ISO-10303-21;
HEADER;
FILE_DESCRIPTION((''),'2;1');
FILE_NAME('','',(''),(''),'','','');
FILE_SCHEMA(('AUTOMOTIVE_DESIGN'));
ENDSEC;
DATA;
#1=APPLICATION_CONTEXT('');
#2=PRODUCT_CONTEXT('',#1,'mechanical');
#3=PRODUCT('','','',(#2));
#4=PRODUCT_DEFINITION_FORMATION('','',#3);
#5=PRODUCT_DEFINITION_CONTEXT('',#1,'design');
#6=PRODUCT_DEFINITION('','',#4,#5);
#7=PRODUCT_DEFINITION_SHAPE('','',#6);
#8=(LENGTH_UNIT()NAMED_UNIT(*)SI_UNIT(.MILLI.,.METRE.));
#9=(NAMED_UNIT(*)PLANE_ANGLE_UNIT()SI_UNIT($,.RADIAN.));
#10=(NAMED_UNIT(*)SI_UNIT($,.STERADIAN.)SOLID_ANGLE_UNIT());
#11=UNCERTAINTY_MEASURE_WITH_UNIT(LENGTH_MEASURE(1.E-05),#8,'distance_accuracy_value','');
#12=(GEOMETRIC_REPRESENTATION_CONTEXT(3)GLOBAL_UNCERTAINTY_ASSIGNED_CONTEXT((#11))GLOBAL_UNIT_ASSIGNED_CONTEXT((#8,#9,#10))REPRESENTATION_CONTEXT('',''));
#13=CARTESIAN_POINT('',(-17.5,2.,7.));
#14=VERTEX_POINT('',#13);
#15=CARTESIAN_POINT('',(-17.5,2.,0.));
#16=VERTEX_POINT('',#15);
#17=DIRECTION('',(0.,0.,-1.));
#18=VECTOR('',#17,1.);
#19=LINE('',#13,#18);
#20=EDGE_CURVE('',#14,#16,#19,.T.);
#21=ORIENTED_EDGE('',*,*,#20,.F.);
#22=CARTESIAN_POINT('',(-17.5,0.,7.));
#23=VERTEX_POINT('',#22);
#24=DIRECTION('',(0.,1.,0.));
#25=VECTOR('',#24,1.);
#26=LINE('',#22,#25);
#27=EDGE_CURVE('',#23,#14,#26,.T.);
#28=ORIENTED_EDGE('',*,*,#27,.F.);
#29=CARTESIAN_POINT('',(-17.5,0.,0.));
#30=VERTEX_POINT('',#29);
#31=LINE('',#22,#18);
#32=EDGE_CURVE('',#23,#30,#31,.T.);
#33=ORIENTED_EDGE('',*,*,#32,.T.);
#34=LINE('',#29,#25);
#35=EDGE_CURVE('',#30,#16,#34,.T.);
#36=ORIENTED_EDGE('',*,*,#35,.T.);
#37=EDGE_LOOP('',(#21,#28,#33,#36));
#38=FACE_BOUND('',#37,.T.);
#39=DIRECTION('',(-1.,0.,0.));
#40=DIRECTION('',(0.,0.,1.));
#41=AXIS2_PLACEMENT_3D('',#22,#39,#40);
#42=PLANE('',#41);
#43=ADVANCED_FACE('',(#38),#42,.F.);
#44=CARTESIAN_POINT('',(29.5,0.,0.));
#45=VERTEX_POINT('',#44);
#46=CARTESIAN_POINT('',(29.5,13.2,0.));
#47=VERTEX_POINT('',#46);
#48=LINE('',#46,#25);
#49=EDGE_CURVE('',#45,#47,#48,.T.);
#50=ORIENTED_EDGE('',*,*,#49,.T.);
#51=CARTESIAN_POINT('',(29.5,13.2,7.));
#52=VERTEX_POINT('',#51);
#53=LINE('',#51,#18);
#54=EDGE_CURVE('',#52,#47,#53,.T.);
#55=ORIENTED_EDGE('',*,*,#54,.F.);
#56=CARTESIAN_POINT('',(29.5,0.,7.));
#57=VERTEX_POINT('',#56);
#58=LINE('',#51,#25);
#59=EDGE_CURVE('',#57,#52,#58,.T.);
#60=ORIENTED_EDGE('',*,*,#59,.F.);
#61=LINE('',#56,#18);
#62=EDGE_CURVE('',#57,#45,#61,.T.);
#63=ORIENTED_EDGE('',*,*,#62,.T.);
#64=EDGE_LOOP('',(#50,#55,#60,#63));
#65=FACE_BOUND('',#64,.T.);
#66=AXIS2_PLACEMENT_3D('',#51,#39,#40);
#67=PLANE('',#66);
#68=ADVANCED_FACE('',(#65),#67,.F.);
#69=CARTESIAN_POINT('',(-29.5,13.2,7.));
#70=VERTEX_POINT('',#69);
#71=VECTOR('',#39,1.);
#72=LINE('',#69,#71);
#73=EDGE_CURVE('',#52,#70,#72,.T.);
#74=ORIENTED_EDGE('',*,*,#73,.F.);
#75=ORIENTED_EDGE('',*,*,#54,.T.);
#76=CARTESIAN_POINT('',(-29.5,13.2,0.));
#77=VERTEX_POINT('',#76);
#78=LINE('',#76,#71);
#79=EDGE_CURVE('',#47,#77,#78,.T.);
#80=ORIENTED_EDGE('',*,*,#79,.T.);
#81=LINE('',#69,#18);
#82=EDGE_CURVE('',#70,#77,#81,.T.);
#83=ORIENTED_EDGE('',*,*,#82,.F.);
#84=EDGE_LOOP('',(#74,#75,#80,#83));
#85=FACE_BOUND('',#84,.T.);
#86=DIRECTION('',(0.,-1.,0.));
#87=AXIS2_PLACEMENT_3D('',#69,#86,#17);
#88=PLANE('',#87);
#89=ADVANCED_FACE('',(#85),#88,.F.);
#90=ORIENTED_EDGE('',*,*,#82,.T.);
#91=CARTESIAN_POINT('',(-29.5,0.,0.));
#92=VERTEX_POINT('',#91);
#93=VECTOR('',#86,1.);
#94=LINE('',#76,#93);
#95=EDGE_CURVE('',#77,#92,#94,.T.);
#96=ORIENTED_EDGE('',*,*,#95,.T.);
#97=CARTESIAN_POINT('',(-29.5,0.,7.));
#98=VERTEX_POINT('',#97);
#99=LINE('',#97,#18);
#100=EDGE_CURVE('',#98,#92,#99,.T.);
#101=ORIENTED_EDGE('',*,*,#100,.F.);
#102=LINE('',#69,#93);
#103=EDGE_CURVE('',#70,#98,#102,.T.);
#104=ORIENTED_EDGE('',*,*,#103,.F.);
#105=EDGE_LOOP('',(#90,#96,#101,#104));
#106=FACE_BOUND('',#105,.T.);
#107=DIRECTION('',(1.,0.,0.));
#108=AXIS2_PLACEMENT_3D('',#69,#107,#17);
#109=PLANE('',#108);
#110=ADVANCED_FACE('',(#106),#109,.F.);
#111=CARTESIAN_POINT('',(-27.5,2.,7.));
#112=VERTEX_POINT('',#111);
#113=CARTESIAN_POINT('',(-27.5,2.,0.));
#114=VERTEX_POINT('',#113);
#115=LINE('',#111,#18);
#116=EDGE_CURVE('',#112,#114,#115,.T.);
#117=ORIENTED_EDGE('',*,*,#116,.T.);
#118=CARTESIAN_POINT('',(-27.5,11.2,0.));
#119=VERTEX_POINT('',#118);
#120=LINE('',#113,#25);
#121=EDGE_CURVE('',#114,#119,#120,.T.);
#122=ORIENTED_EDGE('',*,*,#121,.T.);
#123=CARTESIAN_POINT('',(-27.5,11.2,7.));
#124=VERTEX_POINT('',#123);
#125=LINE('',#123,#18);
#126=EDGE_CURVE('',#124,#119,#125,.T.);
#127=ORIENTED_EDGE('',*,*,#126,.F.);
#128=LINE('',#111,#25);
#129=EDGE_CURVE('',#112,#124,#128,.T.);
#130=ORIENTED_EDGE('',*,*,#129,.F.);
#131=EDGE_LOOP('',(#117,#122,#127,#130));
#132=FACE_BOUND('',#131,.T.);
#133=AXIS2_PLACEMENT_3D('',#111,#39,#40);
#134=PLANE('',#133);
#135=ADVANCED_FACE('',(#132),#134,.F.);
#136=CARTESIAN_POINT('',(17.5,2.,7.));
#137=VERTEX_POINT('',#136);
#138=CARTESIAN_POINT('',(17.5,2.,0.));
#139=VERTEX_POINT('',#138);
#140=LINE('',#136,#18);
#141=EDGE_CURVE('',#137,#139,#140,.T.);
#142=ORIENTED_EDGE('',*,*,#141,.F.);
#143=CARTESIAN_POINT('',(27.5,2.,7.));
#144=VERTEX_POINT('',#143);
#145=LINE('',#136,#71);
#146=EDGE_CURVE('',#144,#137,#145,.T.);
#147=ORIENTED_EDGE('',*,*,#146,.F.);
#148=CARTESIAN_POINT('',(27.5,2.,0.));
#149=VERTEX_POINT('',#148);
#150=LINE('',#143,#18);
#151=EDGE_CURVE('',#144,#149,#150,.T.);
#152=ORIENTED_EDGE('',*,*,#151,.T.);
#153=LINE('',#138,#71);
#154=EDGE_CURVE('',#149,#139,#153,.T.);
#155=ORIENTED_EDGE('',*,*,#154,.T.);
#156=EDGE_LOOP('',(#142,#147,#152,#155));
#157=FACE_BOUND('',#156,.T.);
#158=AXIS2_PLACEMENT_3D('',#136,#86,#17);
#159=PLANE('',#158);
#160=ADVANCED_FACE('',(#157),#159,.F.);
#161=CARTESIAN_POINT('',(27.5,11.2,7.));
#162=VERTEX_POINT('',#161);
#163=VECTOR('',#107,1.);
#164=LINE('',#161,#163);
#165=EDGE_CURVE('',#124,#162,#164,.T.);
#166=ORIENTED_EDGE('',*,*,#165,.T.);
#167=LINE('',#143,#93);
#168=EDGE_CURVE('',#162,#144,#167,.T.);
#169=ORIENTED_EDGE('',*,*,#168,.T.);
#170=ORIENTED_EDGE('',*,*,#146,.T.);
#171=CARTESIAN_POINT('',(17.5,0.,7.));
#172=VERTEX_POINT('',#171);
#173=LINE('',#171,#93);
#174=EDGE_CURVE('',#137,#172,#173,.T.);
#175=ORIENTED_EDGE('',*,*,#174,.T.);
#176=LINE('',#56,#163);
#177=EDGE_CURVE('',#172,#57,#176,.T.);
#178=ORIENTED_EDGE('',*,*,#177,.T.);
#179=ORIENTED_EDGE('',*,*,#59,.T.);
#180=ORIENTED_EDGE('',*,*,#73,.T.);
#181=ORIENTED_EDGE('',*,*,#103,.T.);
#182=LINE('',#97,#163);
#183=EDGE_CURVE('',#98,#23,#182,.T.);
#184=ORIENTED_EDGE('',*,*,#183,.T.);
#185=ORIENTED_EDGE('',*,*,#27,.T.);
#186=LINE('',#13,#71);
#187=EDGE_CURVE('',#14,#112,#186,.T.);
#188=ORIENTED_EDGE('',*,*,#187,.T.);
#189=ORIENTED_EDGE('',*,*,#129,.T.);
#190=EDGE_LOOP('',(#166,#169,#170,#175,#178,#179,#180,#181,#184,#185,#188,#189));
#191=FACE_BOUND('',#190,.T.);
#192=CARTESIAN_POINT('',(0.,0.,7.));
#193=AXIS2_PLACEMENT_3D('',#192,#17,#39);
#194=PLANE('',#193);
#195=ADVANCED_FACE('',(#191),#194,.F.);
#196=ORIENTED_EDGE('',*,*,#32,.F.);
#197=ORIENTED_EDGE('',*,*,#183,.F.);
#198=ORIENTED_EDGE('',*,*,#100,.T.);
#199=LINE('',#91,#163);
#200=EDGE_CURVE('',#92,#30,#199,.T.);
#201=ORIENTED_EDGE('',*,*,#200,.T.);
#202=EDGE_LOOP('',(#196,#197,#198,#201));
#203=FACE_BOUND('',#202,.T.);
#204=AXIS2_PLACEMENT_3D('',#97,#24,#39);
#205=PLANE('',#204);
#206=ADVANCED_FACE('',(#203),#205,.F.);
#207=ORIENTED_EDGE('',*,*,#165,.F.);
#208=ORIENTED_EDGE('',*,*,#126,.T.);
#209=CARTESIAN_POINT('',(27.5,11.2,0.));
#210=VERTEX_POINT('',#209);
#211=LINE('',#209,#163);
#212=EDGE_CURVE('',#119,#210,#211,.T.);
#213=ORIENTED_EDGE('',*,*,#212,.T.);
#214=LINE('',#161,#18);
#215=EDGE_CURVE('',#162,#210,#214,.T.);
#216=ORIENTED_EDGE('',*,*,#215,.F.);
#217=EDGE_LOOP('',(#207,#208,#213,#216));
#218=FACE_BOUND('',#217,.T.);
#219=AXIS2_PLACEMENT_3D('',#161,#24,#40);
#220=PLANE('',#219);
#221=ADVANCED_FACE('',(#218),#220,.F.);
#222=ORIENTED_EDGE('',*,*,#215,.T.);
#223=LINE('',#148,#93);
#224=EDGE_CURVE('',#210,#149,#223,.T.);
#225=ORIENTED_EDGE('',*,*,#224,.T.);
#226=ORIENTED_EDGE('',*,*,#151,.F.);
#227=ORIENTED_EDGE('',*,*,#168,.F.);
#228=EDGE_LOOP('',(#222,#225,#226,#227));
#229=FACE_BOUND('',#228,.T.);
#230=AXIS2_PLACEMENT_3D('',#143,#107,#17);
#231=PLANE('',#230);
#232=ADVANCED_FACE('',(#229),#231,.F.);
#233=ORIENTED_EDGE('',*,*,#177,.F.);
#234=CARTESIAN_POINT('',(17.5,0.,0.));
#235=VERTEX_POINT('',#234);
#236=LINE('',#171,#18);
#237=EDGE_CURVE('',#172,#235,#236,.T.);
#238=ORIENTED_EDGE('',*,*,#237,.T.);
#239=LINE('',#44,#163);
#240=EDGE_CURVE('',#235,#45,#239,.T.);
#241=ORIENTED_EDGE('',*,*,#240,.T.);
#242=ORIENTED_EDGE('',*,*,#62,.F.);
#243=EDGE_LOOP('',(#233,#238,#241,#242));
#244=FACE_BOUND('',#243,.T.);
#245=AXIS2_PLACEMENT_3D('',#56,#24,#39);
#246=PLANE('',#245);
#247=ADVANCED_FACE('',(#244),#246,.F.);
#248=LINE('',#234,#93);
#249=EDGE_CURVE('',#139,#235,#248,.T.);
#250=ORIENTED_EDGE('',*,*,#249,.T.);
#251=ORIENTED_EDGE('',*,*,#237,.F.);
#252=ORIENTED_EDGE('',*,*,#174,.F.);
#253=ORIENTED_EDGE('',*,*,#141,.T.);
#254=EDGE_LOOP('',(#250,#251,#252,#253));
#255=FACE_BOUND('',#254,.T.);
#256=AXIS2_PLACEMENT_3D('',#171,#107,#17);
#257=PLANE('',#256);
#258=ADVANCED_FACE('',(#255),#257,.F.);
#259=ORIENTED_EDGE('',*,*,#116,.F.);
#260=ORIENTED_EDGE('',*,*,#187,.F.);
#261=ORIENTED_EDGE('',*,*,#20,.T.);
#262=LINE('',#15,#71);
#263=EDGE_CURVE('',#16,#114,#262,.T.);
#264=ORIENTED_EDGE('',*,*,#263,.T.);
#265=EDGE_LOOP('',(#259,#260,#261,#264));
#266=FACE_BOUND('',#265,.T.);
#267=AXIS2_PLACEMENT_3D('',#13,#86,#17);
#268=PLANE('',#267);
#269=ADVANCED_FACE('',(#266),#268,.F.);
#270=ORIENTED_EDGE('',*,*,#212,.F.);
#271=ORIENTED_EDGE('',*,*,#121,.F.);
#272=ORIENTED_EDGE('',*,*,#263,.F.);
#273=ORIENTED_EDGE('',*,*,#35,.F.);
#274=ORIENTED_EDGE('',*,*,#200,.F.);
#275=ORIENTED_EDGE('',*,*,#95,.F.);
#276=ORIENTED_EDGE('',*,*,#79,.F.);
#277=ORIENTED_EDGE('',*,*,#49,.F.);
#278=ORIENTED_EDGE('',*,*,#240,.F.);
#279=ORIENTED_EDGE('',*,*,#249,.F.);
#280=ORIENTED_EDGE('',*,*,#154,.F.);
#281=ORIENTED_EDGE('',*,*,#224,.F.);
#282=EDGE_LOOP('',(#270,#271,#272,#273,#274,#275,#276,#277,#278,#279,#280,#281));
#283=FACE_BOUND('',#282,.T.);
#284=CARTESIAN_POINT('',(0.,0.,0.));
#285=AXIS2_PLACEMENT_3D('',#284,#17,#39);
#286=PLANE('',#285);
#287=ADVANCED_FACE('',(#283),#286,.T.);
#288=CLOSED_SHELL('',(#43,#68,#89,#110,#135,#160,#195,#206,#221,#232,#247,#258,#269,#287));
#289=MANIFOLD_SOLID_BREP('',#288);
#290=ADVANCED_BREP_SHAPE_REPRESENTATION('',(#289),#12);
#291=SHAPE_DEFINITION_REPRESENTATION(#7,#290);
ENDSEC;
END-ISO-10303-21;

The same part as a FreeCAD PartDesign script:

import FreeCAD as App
import Part
import Sketcher

V = App.Vector
Q = App.Units.Quantity

doc = App.newDocument("Part")
body = doc.addObject("PartDesign::Body", "Body")

# Sketch on XY plane
sketch1 = body.newObject("Sketcher::SketchObject", "Sketch")
sketch1.AttachmentSupport = (doc.getObject("XY_Plane"), [""])
sketch1.MapMode = "FlatFace"
sketch1.addGeometry(Part.LineSegment(V(29.5, 13.2, 0), V(-29.5, 13.2, 0)), False)
sketch1.addGeometry(Part.LineSegment(V(-29.5, 13.2, 0), V(-29.5, 0, 0)), False)
sketch1.addGeometry(Part.LineSegment(V(-29.5, 0, 0), V(-17.5, 0, 0)), False)
sketch1.addGeometry(Part.LineSegment(V(-17.5, 0, 0), V(-17.5, 2, 0)), False)
sketch1.addGeometry(Part.LineSegment(V(-17.5, 2, 0), V(-27.5, 2, 0)), False)
sketch1.addGeometry(Part.LineSegment(V(-27.5, 2, 0), V(-27.5, 11.2, 0)), False)
sketch1.addGeometry(Part.LineSegment(V(-27.5, 11.2, 0), V(27.5, 11.2, 0)), False)
sketch1.addGeometry(Part.LineSegment(V(27.5, 11.2, 0), V(27.5, 2, 0)), False)
sketch1.addGeometry(Part.LineSegment(V(27.5, 2, 0), V(17.5, 2, 0)), False)
sketch1.addGeometry(Part.LineSegment(V(17.5, 2, 0), V(17.5, 0, 0)), False)
sketch1.addGeometry(Part.LineSegment(V(17.5, 0, 0), V(29.5, 0, 0)), False)
sketch1.addGeometry(Part.LineSegment(V(29.5, 0, 0), V(29.5, 13.2, 0)), False)
sketch1.addConstraint(Sketcher.Constraint("Coincident", 0, 2, 1, 1))
sketch1.addConstraint(Sketcher.Constraint("Coincident", 1, 2, 2, 1))
sketch1.addConstraint(Sketcher.Constraint("Coincident", 2, 2, 3, 1))
sketch1.addConstraint(Sketcher.Constraint("Coincident", 3, 2, 4, 1))
sketch1.addConstraint(Sketcher.Constraint("Coincident", 4, 2, 5, 1))
sketch1.addConstraint(Sketcher.Constraint("Coincident", 5, 2, 6, 1))
sketch1.addConstraint(Sketcher.Constraint("Coincident", 6, 2, 7, 1))
sketch1.addConstraint(Sketcher.Constraint("Coincident", 7, 2, 8, 1))
sketch1.addConstraint(Sketcher.Constraint("Coincident", 8, 2, 9, 1))
sketch1.addConstraint(Sketcher.Constraint("Coincident", 9, 2, 10, 1))
sketch1.addConstraint(Sketcher.Constraint("Coincident", 10, 2, 11, 1))
sketch1.addConstraint(Sketcher.Constraint("Coincident", 11, 2, 0, 1))
sketch1.addConstraint(Sketcher.Constraint("Horizontal", 0))
sketch1.addConstraint(Sketcher.Constraint("Vertical", 1))
sketch1.addConstraint(Sketcher.Constraint("Horizontal", 2))
sketch1.addConstraint(Sketcher.Constraint("Vertical", 3))
sketch1.addConstraint(Sketcher.Constraint("Horizontal", 4))
sketch1.addConstraint(Sketcher.Constraint("Vertical", 5))
sketch1.addConstraint(Sketcher.Constraint("Horizontal", 6))
sketch1.addConstraint(Sketcher.Constraint("Vertical", 7))
sketch1.addConstraint(Sketcher.Constraint("Horizontal", 8))
sketch1.addConstraint(Sketcher.Constraint("Vertical", 9))
sketch1.addConstraint(Sketcher.Constraint("Horizontal", 10))
sketch1.addConstraint(Sketcher.Constraint("Vertical", 11))
sketch1.addConstraint(Sketcher.Constraint("Symmetric", 2, 2, 9, 2, -1, 1))
sketch1.addConstraint(Sketcher.Constraint("Symmetric", 4, 2, 7, 2, -2))
sketch1.addConstraint(Sketcher.Constraint("Symmetric", 1, 2, 10, 2, -2))
sketch1.addConstraint(Sketcher.Constraint("DistanceX", 0, 2, 0, 1, Q("59 mm")))
sketch1.addConstraint(Sketcher.Constraint("DistanceX", 2, 1, 2, 2, Q("12 mm")))
sketch1.addConstraint(Sketcher.Constraint("DistanceX", 4, 2, 4, 1, Q("10 mm")))
sketch1.addConstraint(Sketcher.Constraint("DistanceY", 3, 1, 3, 2, Q("2 mm")))
sketch1.addConstraint(Sketcher.Constraint("DistanceY", 1, 2, 1, 1, Q("13.2 mm")))
sketch1.addConstraint(Sketcher.Constraint("DistanceY", 5, 1, 5, 2, Q("9.2 mm")))
pad1 = body.newObject("PartDesign::Pad", "Pad")
pad1.Profile = sketch1
pad1.Length = 7

doc.recompute()
